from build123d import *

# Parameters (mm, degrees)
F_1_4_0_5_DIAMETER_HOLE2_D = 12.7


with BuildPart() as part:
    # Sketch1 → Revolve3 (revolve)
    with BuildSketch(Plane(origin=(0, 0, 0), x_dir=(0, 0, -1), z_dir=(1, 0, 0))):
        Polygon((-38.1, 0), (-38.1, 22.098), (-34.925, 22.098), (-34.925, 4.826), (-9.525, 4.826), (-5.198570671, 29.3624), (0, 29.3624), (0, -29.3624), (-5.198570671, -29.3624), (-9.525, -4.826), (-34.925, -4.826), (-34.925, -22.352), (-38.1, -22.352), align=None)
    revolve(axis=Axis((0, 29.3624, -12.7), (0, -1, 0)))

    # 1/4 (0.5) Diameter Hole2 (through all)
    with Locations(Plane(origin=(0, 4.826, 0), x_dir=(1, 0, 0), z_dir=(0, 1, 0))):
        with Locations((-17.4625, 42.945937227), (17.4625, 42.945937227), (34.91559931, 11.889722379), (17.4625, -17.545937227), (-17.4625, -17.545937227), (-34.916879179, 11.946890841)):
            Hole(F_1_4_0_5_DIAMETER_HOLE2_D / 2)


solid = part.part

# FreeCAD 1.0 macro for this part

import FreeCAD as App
import Part
import Sketcher

V = App.Vector
Q = App.Units.Quantity

doc = App.newDocument("Part")
body = doc.addObject("PartDesign::Body", "Body")

# Sketch on YZ plane
sketch1 = doc.addObject("Sketcher::SketchObject", "Sketch")
body.addObject(sketch1)
sketch1.AttachmentSupport = (doc.YZ_Plane, [""])
sketch1.MapMode = "FlatFace"
sketch1.addGeometry(Part.LineSegment(V(22.1, 38.1, 0), V(-22.4, 38.1, 0)), False)
sketch1.addGeometry(Part.LineSegment(V(-22.4, 38.1, 0), V(-22.4, 34.9, 0)), False)
sketch1.addGeometry(Part.LineSegment(V(-22.4, 34.9, 0), V(-4.8, 34.9, 0)), False)
sketch1.addGeometry(Part.LineSegment(V(-4.8, 34.9, 0), V(-4.8, 9.5, 0)), False)
sketch1.addGeometry(Part.LineSegment(V(-4.8, 9.5, 0), V(-29.4, 5.2, 0)), False)
sketch1.addGeometry(Part.LineSegment(V(-29.4, 5.2, 0), V(-29.4, 0, 0)), False)
sketch1.addGeometry(Part.LineSegment(V(-29.4, 0, 0), V(29.4, 0, 0)), False)
sketch1.addGeometry(Part.LineSegment(V(29.4, 0, 0), V(29.4, 5.2, 0)), False)
sketch1.addGeometry(Part.LineSegment(V(29.4, 5.2, 0), V(4.8, 9.5, 0)), False)
sketch1.addGeometry(Part.LineSegment(V(4.8, 9.5, 0), V(4.8, 34.9, 0)), False)
sketch1.addGeometry(Part.LineSegment(V(4.8, 34.9, 0), V(22.1, 34.9, 0)), False)
sketch1.addGeometry(Part.LineSegment(V(22.1, 34.9, 0), V(22.1, 38.1, 0)), False)
sketch1.addGeometry(Part.LineSegment(V(29.4, -12.7, 0), V(-29.4, -12.7, 0)), True)  # axis
sketch1.addConstraint(Sketcher.Constraint("Coincident", 0, 2, 1, 1))
sketch1.addConstraint(Sketcher.Constraint("Coincident", 1, 2, 2, 1))
sketch1.addConstraint(Sketcher.Constraint("Coincident", 2, 2, 3, 1))
sketch1.addConstraint(Sketcher.Constraint("Coincident", 3, 2, 4, 1))
sketch1.addConstraint(Sketcher.Constraint("Coincident", 4, 2, 5, 1))
sketch1.addConstraint(Sketcher.Constraint("Coincident", 5, 2, 6, 1))
sketch1.addConstraint(Sketcher.Constraint("Coincident", 6, 2, 7, 1))
sketch1.addConstraint(Sketcher.Constraint("Coincident", 7, 2, 8, 1))
sketch1.addConstraint(Sketcher.Constraint("Coincident", 8, 2, 9, 1))
sketch1.addConstraint(Sketcher.Constraint("Coincident", 9, 2, 10, 1))
sketch1.addConstraint(Sketcher.Constraint("Coincident", 10, 2, 11, 1))
sketch1.addConstraint(Sketcher.Constraint("Coincident", 11, 2, 0, 1))
sketch1.addConstraint(Sketcher.Constraint("Horizontal", 0))
sketch1.addConstraint(Sketcher.Constraint("Vertical", 1))
sketch1.addConstraint(Sketcher.Constraint("Horizontal", 2))
sketch1.addConstraint(Sketcher.Constraint("Vertical", 3))
sketch1.addConstraint(Sketcher.Constraint("Vertical", 5))
sketch1.addConstraint(Sketcher.Constraint("Horizontal", 6))
sketch1.addConstraint(Sketcher.Constraint("Vertical", 7))
sketch1.addConstraint(Sketcher.Constraint("Vertical", 9))
sketch1.addConstraint(Sketcher.Constraint("Horizontal", 10))
sketch1.addConstraint(Sketcher.Constraint("Vertical", 11))
sketch1.addConstraint(Sketcher.Constraint("Horizontal", 12))
sketch1.addConstraint(Sketcher.Constraint("Symmetric", 5, 2, 6, 2, -1, 1))
sketch1.addConstraint(Sketcher.Constraint("Symmetric", 3, 2, 8, 2, -2))
sketch1.addConstraint(Sketcher.Constraint("Horizontal", 4, 2, 7, 2))
sketch1.addConstraint(Sketcher.Constraint("Horizontal", 2, 2, 9, 2))
sketch1.addConstraint(Sketcher.Constraint("Vertical", 7, 2, 12, 1))
sketch1.addConstraint(Sketcher.Constraint("Vertical", 5, 2, 12, 2))
sketch1.addConstraint(Sketcher.Constraint("DistanceY", 3, 2, 3, 1, Q("1 in")))
sketch1.addConstraint(Sketcher.Constraint("Angle", 4, Q("-170 deg")))
sketch1.addConstraint(Sketcher.Constraint("DistanceX", 0, 2, 0, 1, Q("1.75 in")))
sketch1.addConstraint(Sketcher.Constraint("DistanceX", 2, 1, 2, 2, Q("0.69 in")))
sketch1.addConstraint(Sketcher.Constraint("DistanceX", 10, 1, 10, 2, Q("0.68 in")))
sketch1.addConstraint(Sketcher.Constraint("DistanceY", -1, 1, 0, 2, Q("1.5 in")))
sketch1.addConstraint(Sketcher.Constraint("DistanceY", 12, 1, -1, 1, Q("0.5 in")))
sketch1.addConstraint(Sketcher.Constraint("DistanceX", 6, 1, 6, 2, Q("2.312 in")))
sketch1.addConstraint(Sketcher.Constraint("DistanceY", 1, 2, 1, 1, Q("0.125 in")))
revolution = doc.addObject("PartDesign::Revolution", "Revolution")
body.addObject(revolution)
revolution.Profile = sketch1
revolution.ReferenceAxis = (sketch1, ["Axis0"])
revolution.Angle = 360

# Sketch on XZ plane
sketch2 = doc.addObject("Sketcher::SketchObject", "Sketch001")
body.addObject(sketch2)
sketch2.AttachmentSupport = (doc.XZ_Plane, [""])
sketch2.MapMode = "FlatFace"
sketch2.AttachmentOffset = App.Placement(V(0, 0, -0.19 * 25.4), App.Rotation())
sketch2.addGeometry(Part.Circle(V(-17, -43, 0), V(0, 0, 1), 6), False)
sketch2.addGeometry(Part.Circle(V(17, -43, 0), V(0, 0, 1), 6), False)
sketch2.addGeometry(Part.Circle(V(35, -12, 0), V(0, 0, 1), 6), False)
sketch2.addGeometry(Part.Circle(V(17, 18, 0), V(0, 0, 1), 6), False)
sketch2.addGeometry(Part.Circle(V(-17, 18, 0), V(0, 0, 1), 6), False)
sketch2.addGeometry(Part.Circle(V(-35, -12, 0), V(0, 0, 1), 6), False)
sketch2.addConstraint(Sketcher.Constraint("Equal", 0, 1))
sketch2.addConstraint(Sketcher.Constraint("Equal", 1, 2))
sketch2.addConstraint(Sketcher.Constraint("Equal", 2, 3))
sketch2.addConstraint(Sketcher.Constraint("Equal", 3, 4))
sketch2.addConstraint(Sketcher.Constraint("Equal", 4, 5))
sketch2.addConstraint(Sketcher.Constraint("Symmetric", 0, 3, 1, 3, -2))
sketch2.addConstraint(Sketcher.Constraint("Symmetric", 3, 3, 4, 3, -2))
sketch2.addConstraint(Sketcher.Constraint("Vertical", 1, 3, 3, 3))
sketch2.addConstraint(Sketcher.Constraint("Diameter", 0, Q("0.5 in")))
sketch2.addConstraint(Sketcher.Constraint("DistanceX", 0, 3, -1, 1, Q("0.6875 in")))
sketch2.addConstraint(Sketcher.Constraint("DistanceX", -1, 1, 2, 3, Q("34.915599 mm")))
sketch2.addConstraint(Sketcher.Constraint("DistanceX", 5, 3, -1, 1, Q("34.916879 mm")))
sketch2.addConstraint(Sketcher.Constraint("DistanceY", 5, 3, -1, 1, Q("11.946891 mm")))
sketch2.addConstraint(Sketcher.Constraint("DistanceY", 2, 3, 3, 3, Q("29.43566 mm")))
sketch2.addConstraint(Sketcher.Constraint("DistanceY", 5, 3, 4, 3, Q("29.492828 mm")))
sketch2.addConstraint(Sketcher.Constraint("DistanceY", 0, 3, -1, 1, Q("42.945937 mm")))
doc.recompute()
hole = doc.addObject("PartDesign::Hole", "Hole")
body.addObject(hole)
hole.Profile = sketch2
hole.ThreadType = "None"
hole.Diameter = Q("0.5 in")
hole.DepthType = "ThroughAll"
hole.Reversed = True

doc.recompute()
